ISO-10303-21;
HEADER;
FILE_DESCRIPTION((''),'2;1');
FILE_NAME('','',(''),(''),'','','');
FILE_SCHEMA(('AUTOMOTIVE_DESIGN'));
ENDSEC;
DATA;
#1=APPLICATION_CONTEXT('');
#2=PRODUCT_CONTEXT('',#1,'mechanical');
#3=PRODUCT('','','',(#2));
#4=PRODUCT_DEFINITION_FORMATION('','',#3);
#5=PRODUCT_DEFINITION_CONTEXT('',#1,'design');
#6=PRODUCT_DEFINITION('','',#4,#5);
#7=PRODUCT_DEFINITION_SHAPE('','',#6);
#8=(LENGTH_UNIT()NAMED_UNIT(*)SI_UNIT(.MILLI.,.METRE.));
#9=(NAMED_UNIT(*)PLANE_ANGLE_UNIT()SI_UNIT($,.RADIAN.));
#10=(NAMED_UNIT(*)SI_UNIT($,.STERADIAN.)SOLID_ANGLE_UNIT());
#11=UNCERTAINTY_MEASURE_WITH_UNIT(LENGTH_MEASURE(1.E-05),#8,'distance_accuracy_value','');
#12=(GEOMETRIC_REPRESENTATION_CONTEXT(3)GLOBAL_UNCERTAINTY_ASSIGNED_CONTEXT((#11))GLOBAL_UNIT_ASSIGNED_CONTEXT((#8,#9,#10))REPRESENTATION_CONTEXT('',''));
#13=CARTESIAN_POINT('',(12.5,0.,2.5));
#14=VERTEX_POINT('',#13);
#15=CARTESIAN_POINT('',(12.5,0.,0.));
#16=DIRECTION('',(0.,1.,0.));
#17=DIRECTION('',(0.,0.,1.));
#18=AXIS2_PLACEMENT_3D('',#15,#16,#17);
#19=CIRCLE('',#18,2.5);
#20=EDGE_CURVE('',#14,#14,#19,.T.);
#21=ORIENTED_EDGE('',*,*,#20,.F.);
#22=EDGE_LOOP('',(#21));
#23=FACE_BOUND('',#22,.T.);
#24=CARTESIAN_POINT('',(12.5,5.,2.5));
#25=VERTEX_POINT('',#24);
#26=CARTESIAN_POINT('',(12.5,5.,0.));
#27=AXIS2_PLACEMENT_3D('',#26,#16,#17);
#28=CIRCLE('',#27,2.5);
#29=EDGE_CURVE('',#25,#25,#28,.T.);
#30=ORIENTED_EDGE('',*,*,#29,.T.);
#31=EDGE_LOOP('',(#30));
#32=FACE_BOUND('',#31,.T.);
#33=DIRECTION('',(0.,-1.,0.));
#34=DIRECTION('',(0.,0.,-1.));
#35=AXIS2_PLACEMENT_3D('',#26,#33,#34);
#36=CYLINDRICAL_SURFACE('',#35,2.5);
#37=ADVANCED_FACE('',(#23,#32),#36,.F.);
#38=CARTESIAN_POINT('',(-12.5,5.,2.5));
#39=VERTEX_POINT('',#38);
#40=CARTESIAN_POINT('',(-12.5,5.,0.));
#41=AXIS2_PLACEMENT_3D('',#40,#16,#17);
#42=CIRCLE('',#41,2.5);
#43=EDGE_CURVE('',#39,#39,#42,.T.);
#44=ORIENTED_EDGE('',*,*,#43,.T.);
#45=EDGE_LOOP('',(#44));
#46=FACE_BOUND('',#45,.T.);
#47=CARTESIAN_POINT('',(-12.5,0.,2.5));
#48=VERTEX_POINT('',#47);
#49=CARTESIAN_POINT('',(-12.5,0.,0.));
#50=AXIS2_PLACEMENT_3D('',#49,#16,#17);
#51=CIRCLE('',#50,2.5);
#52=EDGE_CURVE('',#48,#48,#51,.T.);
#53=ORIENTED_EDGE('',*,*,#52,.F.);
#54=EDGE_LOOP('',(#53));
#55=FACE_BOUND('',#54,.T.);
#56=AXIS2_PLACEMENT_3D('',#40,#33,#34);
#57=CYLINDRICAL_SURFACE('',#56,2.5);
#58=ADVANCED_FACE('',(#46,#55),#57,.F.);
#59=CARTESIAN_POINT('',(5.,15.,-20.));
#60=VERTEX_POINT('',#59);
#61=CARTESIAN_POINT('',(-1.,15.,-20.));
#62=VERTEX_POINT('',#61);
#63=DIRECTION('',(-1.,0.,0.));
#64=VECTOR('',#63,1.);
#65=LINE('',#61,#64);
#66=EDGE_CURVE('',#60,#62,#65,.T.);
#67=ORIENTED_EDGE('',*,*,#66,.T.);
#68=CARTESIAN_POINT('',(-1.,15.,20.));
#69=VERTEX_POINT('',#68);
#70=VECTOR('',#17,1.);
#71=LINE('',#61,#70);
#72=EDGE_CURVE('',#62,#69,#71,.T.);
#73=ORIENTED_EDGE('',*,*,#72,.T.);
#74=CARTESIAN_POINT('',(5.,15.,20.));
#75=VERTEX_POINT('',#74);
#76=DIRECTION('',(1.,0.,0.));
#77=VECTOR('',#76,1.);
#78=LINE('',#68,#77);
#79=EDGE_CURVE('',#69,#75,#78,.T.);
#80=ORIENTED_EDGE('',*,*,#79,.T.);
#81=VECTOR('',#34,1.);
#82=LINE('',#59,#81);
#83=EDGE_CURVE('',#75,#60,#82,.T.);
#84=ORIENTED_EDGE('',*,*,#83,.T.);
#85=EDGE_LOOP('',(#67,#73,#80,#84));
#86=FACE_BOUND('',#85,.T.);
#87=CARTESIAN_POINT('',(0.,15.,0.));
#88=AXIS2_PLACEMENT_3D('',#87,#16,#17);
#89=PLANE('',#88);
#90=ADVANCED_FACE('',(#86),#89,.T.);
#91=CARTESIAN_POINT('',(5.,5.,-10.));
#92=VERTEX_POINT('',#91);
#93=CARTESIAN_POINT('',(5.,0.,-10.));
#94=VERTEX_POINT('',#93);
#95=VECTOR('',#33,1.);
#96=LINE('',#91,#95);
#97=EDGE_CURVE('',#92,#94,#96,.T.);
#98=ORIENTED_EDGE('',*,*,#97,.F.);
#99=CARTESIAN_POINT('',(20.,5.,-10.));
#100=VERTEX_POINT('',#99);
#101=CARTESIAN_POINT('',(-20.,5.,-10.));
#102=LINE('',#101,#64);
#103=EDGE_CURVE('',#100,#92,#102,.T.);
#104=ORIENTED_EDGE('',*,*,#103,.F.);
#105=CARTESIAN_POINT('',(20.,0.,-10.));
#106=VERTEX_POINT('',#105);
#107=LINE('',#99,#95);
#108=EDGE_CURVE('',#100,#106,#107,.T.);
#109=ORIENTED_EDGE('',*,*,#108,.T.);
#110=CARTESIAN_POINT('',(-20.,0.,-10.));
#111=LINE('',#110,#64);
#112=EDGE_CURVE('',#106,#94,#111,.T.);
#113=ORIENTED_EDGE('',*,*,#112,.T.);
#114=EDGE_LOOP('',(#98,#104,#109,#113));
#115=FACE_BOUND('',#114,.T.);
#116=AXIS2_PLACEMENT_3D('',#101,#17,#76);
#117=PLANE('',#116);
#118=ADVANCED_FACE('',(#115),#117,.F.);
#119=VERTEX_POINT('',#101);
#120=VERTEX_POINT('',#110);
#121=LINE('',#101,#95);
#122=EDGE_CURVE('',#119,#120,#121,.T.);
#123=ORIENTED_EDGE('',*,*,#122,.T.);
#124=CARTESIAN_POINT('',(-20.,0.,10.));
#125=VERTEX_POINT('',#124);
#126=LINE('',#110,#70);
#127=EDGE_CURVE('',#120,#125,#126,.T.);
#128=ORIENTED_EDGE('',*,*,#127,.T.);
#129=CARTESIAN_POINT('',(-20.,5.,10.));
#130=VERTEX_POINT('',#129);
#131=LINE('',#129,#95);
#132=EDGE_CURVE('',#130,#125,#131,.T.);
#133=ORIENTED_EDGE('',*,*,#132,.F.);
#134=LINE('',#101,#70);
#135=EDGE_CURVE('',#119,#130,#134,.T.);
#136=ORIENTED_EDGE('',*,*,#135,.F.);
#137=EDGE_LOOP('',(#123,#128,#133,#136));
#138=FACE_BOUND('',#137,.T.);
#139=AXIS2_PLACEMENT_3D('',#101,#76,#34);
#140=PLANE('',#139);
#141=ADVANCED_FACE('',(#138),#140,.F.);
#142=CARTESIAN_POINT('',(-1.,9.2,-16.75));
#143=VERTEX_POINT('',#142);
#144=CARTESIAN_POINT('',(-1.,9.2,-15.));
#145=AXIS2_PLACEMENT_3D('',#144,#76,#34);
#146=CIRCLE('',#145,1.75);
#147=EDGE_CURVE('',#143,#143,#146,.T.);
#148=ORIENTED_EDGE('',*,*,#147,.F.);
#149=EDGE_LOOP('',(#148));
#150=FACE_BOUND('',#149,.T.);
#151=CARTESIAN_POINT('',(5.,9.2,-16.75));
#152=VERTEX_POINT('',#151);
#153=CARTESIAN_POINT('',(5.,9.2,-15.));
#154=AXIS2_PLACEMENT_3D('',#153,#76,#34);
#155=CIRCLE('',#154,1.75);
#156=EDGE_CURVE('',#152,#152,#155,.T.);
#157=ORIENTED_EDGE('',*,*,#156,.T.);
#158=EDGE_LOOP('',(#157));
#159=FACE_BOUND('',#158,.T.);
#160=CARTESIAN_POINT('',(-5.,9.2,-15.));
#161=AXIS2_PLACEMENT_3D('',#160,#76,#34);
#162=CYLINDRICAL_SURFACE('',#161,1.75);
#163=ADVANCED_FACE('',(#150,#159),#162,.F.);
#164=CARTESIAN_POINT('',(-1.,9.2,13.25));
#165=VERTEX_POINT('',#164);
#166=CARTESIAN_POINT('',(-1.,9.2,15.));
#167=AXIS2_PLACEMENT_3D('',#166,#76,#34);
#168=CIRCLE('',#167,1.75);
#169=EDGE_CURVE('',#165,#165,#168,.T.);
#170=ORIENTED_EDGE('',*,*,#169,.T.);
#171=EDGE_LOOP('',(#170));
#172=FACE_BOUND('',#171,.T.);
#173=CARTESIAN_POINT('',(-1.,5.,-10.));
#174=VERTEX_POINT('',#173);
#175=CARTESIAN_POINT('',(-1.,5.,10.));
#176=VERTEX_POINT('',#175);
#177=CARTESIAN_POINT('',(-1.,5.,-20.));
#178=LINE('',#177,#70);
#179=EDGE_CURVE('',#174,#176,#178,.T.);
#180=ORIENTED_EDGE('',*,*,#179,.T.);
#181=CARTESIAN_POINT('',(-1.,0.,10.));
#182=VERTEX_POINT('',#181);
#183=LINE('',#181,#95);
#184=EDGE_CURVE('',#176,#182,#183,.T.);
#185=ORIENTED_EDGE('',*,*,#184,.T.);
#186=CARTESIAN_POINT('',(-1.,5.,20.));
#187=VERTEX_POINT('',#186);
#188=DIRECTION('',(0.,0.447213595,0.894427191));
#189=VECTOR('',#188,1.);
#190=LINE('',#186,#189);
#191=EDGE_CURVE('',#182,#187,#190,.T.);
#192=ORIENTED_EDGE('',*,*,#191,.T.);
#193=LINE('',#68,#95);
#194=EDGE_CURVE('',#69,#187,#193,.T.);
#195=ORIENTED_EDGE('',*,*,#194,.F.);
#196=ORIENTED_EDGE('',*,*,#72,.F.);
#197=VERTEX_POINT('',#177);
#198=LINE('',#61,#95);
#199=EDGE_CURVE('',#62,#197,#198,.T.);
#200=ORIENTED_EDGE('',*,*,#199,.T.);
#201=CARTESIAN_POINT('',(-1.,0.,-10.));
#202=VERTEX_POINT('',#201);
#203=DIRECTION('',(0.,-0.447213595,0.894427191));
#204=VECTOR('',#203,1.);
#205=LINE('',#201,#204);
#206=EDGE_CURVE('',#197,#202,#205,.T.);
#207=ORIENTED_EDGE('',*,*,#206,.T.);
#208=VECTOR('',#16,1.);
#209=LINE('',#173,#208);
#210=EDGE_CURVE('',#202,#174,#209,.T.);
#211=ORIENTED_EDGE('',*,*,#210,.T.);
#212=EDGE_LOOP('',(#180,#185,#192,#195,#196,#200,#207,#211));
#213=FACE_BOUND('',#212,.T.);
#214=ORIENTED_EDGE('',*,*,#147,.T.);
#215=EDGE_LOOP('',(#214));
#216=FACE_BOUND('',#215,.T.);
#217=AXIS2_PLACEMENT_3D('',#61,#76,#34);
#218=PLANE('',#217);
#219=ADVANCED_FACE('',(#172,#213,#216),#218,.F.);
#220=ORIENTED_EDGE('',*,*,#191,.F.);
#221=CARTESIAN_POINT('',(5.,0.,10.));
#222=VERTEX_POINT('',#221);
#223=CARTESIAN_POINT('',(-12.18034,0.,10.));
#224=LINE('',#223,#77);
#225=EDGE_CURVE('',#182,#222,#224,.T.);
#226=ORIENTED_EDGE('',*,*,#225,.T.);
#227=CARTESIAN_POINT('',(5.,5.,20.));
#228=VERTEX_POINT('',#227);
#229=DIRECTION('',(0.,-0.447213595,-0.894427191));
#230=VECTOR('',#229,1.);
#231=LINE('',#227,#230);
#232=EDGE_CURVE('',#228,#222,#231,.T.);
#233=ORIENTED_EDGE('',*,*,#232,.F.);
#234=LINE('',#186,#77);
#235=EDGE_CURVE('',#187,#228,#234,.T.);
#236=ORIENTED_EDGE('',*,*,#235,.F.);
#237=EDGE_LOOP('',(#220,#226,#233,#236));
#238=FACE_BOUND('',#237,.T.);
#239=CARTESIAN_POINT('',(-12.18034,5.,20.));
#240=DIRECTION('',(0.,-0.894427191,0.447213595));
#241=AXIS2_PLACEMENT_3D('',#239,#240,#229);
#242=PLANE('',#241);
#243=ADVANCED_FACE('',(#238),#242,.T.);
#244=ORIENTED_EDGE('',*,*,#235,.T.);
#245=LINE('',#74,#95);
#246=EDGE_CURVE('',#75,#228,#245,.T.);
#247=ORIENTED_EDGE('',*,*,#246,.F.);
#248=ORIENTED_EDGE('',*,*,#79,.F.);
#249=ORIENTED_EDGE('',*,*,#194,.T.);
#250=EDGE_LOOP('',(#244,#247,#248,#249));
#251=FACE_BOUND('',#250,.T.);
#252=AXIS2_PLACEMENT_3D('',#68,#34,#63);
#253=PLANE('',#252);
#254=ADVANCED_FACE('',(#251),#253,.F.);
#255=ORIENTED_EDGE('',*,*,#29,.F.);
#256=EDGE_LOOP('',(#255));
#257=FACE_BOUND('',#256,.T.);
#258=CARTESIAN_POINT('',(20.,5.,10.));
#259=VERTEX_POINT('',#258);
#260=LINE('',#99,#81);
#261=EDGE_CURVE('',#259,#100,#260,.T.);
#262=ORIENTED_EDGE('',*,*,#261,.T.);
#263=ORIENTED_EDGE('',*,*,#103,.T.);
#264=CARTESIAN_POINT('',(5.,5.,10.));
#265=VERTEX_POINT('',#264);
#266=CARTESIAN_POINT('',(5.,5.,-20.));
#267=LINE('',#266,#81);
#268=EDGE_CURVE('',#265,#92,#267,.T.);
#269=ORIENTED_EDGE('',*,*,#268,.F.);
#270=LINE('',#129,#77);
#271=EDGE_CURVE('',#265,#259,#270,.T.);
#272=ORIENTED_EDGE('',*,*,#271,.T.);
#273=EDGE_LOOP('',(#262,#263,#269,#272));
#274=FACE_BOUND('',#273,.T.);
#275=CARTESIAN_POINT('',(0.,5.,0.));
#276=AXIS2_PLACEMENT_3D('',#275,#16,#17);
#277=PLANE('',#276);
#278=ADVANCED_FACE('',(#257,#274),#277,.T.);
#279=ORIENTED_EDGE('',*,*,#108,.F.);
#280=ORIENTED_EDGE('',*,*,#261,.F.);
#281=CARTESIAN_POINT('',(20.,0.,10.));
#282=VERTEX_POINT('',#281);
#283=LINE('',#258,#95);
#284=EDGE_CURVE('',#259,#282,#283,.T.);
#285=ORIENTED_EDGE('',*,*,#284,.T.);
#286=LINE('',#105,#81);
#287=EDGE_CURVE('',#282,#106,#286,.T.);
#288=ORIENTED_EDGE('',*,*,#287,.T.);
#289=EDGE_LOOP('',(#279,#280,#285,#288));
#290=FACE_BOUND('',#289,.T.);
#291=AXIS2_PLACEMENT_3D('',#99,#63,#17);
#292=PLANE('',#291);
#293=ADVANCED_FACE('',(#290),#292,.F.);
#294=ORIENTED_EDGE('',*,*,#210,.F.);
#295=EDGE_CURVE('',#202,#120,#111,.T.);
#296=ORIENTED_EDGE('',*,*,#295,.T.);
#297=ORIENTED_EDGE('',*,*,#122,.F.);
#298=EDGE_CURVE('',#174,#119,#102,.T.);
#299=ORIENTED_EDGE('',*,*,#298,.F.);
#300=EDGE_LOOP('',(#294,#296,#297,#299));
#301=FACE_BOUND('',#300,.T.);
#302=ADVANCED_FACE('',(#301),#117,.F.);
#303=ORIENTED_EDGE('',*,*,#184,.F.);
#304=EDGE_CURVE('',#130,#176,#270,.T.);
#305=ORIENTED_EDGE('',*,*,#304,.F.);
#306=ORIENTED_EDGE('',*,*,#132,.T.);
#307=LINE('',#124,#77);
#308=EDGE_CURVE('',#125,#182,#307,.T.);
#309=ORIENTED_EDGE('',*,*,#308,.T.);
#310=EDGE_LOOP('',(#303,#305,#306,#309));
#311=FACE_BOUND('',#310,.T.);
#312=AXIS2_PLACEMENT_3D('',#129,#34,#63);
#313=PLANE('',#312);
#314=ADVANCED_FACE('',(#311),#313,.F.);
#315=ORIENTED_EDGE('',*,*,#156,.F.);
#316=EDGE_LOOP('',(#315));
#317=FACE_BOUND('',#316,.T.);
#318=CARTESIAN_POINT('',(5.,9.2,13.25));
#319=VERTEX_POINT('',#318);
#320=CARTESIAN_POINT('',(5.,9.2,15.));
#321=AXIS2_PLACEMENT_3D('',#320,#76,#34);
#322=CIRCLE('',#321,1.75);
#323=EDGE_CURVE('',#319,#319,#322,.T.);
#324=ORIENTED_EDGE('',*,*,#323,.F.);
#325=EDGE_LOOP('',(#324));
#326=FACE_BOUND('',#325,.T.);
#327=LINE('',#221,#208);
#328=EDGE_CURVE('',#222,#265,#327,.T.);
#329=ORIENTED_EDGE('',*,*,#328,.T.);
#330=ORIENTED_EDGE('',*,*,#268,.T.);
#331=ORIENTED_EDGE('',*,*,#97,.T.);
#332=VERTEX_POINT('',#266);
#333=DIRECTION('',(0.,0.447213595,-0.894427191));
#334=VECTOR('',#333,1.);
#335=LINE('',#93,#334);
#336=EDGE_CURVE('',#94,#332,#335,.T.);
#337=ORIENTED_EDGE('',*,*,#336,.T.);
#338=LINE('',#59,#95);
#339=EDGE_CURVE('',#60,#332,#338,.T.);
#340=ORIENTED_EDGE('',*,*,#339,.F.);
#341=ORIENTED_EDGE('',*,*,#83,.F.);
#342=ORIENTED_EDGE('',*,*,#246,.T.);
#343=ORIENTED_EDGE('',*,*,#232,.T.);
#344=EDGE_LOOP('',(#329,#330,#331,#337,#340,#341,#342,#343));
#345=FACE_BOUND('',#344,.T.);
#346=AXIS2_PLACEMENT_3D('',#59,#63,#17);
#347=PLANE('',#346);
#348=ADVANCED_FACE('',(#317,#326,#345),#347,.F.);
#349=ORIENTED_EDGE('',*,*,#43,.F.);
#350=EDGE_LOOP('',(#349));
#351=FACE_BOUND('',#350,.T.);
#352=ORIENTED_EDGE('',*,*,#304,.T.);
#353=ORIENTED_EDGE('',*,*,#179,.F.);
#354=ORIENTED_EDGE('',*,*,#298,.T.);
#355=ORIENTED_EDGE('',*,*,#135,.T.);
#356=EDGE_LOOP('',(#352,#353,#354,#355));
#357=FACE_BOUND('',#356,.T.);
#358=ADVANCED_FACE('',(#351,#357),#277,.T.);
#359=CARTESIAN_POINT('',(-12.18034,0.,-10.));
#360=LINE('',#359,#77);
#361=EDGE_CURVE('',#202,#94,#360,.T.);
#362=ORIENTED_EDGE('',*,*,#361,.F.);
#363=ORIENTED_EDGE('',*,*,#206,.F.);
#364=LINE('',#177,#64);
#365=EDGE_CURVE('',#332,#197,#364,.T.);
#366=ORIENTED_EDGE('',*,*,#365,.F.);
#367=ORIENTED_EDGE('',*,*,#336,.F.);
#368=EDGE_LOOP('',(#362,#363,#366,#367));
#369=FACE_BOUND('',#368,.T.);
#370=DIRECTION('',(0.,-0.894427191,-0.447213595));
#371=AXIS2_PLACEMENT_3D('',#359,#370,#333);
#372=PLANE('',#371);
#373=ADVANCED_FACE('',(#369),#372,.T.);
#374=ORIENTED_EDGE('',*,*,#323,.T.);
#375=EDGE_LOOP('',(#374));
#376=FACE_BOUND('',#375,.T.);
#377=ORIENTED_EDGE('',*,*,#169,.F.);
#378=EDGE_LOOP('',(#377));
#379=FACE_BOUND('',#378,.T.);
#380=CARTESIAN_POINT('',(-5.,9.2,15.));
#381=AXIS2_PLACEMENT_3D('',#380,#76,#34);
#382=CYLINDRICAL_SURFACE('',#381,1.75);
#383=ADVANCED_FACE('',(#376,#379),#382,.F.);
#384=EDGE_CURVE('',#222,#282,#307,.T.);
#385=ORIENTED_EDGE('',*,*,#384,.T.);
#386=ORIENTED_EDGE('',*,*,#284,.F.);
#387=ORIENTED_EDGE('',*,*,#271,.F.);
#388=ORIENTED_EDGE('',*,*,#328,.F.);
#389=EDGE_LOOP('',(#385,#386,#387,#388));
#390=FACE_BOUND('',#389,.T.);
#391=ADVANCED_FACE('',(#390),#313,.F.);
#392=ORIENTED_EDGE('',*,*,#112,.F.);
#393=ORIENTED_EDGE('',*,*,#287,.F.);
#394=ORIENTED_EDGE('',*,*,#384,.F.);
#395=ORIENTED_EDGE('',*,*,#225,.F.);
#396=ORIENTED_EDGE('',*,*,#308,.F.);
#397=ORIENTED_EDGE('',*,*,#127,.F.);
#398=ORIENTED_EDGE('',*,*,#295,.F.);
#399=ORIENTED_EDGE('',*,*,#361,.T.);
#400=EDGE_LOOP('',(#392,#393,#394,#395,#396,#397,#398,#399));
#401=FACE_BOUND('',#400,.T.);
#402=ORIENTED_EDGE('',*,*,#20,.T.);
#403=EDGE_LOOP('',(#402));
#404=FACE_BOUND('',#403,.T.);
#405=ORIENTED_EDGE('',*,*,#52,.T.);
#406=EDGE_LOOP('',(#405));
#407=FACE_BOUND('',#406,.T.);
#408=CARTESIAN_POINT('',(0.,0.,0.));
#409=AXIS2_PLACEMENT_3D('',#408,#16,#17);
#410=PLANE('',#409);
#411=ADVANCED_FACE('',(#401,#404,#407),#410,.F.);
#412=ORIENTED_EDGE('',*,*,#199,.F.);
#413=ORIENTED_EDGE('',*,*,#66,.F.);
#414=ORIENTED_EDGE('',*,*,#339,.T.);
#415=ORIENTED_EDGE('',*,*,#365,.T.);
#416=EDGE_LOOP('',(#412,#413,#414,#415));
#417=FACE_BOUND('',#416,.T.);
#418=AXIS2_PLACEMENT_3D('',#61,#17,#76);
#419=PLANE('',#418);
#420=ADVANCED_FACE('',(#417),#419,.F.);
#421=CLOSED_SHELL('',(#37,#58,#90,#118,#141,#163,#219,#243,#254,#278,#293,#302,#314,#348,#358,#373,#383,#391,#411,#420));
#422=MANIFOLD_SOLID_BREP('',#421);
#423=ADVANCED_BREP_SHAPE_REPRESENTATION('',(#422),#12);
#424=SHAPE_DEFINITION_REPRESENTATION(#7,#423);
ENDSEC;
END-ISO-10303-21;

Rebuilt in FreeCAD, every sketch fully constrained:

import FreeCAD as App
import Part
import Sketcher
Q = App.Units.Quantity

doc = App.newDocument("Part")
body = doc.addObject("PartDesign::Body", "Body")

# Sketch on XZ plane
sketch1 = body.newObject("Sketcher::SketchObject", "Sketch")
sketch1.AttachmentSupport = (doc.getObject("XZ_Plane"), [""])
sketch1.MapMode = "FlatFace"
sketch1.addGeometry(Part.LineSegment(App.Vector(-20, -10, 0), App.Vector(-20, 10, 0)), False)
sketch1.addGeometry(Part.LineSegment(App.Vector(-20, 10, 0), App.Vector(20, 10, 0)), False)
sketch1.addGeometry(Part.LineSegment(App.Vector(20, 10, 0), App.Vector(20, -10, 0)), False)
sketch1.addGeometry(Part.LineSegment(App.Vector(20, -10, 0), App.Vector(-20, -10, 0)), False)
sketch1.addGeometry(Part.Circle(App.Vector(-12.5, 0, 0), App.Vector(0, 0, 1), 2.5), False)
sketch1.addGeometry(Part.Circle(App.Vector(12.5, 0, 0), App.Vector(0, 0, 1), 2.5), False)
sketch1.addConstraint(Sketcher.Constraint("Coincident", 0, 2, 1, 1))
sketch1.addConstraint(Sketcher.Constraint("Coincident", 1, 2, 2, 1))
sketch1.addConstraint(Sketcher.Constraint("Coincident", 2, 2, 3, 1))
sketch1.addConstraint(Sketcher.Constraint("Coincident", 3, 2, 0, 1))
sketch1.addConstraint(Sketcher.Constraint("Vertical", 0))
sketch1.addConstraint(Sketcher.Constraint("Horizontal", 1))
sketch1.addConstraint(Sketcher.Constraint("Vertical", 2))
sketch1.addConstraint(Sketcher.Constraint("Horizontal", 3))
sketch1.addConstraint(Sketcher.Constraint("Equal", 4, 5))
sketch1.addConstraint(Sketcher.Constraint("Symmetric", 4, 3, 5, 3, -1, 1))
sketch1.addConstraint(Sketcher.Constraint("Symmetric", 0, 2, 2, 2, -1, 1))
sketch1.addConstraint(Sketcher.Constraint("PointOnObject", 4, 3, -1))
sketch1.addConstraint(Sketcher.Constraint("Diameter", 4, Q("5 mm")))
sketch1.addConstraint(Sketcher.Constraint("DistanceX", 1, 1, 1, 2, Q("40 mm")))
sketch1.addConstraint(Sketcher.Constraint("DistanceY", 0, 1, 0, 2, Q("20 mm")))
sketch1.addConstraint(Sketcher.Constraint("DistanceX", 4, 3, 5, 3, Q("25 mm")))
pad1 = body.newObject("PartDesign::Pad", "Pad")
pad1.Profile = sketch1
pad1.Length = 5
pad1.Reversed = True

# Sketch on XZ plane
sketch2 = body.newObject("Sketcher::SketchObject", "Sketch001")
sketch2.AttachmentSupport = (doc.getObject("XZ_Plane"), [""])
sketch2.MapMode = "FlatFace"
sketch2.AttachmentOffset = App.Placement(App.Vector(0, 0, -5), App.Rotation())
sketch2.addGeometry(Part.LineSegment(App.Vector(-1, -20, 0), App.Vector(-1, 20, 0)), False)
sketch2.addGeometry(Part.LineSegment(App.Vector(-1, 20, 0), App.Vector(5, 20, 0)), False)
sketch2.addGeometry(Part.LineSegment(App.Vector(5, 20, 0), App.Vector(5, -20, 0)), False)
sketch2.addGeometry(Part.LineSegment(App.Vector(5, -20, 0), App.Vector(-1, -20, 0)), False)
sketch2.addConstraint(Sketcher.Constraint("Coincident", 0, 2, 1, 1))
sketch2.addConstraint(Sketcher.Constraint("Coincident", 1, 2, 2, 1))
sketch2.addConstraint(Sketcher.Constraint("Coincident", 2, 2, 3, 1))
sketch2.addConstraint(Sketcher.Constraint("Coincident", 3, 2, 0, 1))
sketch2.addConstraint(Sketcher.Constraint("Vertical", 0))
sketch2.addConstraint(Sketcher.Constraint("Horizontal", 1))
sketch2.addConstraint(Sketcher.Constraint("Vertical", 2))
sketch2.addConstraint(Sketcher.Constraint("Horizontal", 3))
sketch2.addConstraint(Sketcher.Constraint("DistanceX", 1, 1, 1, 2, Q("6 mm")))
sketch2.addConstraint(Sketcher.Constraint("DistanceY", 0, 1, 0, 2, Q("40 mm")))
sketch2.addConstraint(Sketcher.Constraint("DistanceX", 0, 2, -1, 1, Q("1 mm")))
sketch2.addConstraint(Sketcher.Constraint("DistanceY", -1, 1, 0, 2, Q("20 mm")))
pad2 = body.newObject("PartDesign::Pad", "Pad001")
pad2.Profile = sketch2
pad2.Length = 10
pad2.Reversed = True

# Sketch on YZ plane
sketch3 = body.newObject("Sketcher::SketchObject", "Sketch002")
sketch3.AttachmentSupport = (doc.getObject("YZ_Plane"), [""])
sketch3.MapMode = "FlatFace"
sketch3.AttachmentOffset = App.Placement(App.Vector(0, 0, 5), App.Rotation())
sketch3.addGeometry(Part.Circle(App.Vector(9.2, 15, 0), App.Vector(0, 0, 1), 1.8), False)
sketch3.addGeometry(Part.Circle(App.Vector(9.2, -15, 0), App.Vector(0, 0, 1), 1.8), False)
sketch3.addConstraint(Sketcher.Constraint("Equal", 0, 1))
sketch3.addConstraint(Sketcher.Constraint("Symmetric", 0, 3, 1, 3, -1))
sketch3.addConstraint(Sketcher.Constraint("Diameter", 0, Q("3.5 mm")))
sketch3.addConstraint(Sketcher.Constraint("DistanceY", -1, 1, 0, 3, Q("15 mm")))
sketch3.addConstraint(Sketcher.Constraint("DistanceX", -1, 1, 0, 3, Q("9.2 mm")))
pocket1 = body.newObject("PartDesign::Pocket", "Pocket")
pocket1.Profile = sketch3
pocket1.Length = 10

# Sketch on YZ plane
sketch4 = body.newObject("Sketcher::SketchObject", "Sketch003")
sketch4.AttachmentSupport = (doc.getObject("YZ_Plane"), [""])
sketch4.MapMode = "FlatFace"
sketch4.AttachmentOffset = App.Placement(App.Vector(0, 0, 5), App.Rotation())
sketch4.addGeometry(Part.LineSegment(App.Vector(5, 20, 0), App.Vector(0, 10, 0)), False)
sketch4.addGeometry(Part.LineSegment(App.Vector(0, 10, 0), App.Vector(5, 10, 0)), False)
sketch4.addGeometry(Part.LineSegment(App.Vector(5, 10, 0), App.Vector(5, 20, 0)), False)
sketch4.addGeometry(Part.LineSegment(App.Vector(5, -10, 0), App.Vector(0, -10, 0)), False)
sketch4.addGeometry(Part.LineSegment(App.Vector(0, -10, 0), App.Vector(5, -20, 0)), False)
sketch4.addGeometry(Part.LineSegment(App.Vector(5, -20, 0), App.Vector(5, -10, 0)), False)
sketch4.addConstraint(Sketcher.Constraint("Coincident", 0, 2, 1, 1))
sketch4.addConstraint(Sketcher.Constraint("Coincident", 1, 2, 2, 1))
sketch4.addConstraint(Sketcher.Constraint("Coincident", 2, 2, 0, 1))
sketch4.addConstraint(Sketcher.Constraint("Coincident", 3, 2, 4, 1))
sketch4.addConstraint(Sketcher.Constraint("Coincident", 4, 2, 5, 1))
sketch4.addConstraint(Sketcher.Constraint("Coincident", 5, 2, 3, 1))
sketch4.addConstraint(Sketcher.Constraint("Horizontal", 1))
sketch4.addConstraint(Sketcher.Constraint("Vertical", 2))
sketch4.addConstraint(Sketcher.Constraint("Horizontal", 3))
sketch4.addConstraint(Sketcher.Constraint("Vertical", 5))
sketch4.addConstraint(Sketcher.Constraint("Symmetric", 0, 2, 3, 2, -1, 1))
sketch4.addConstraint(Sketcher.Constraint("Symmetric", 2, 2, 4, 2, -1))
sketch4.addConstraint(Sketcher.Constraint("PointOnObject", 0, 2, -2))
sketch4.addConstraint(Sketcher.Constraint("DistanceX", 1, 1, 1, 2, Q("5 mm")))
sketch4.addConstraint(Sketcher.Constraint("DistanceY", 2, 1, 2, 2, Q("10 mm")))
sketch4.addConstraint(Sketcher.Constraint("DistanceY", -1, 1, 0, 2, Q("10 mm")))
pad3 = body.newObject("PartDesign::Pad", "Pad002")
pad3.Profile = sketch4
pad3.Length = 6
pad3.Reversed = True

doc.recompute()
